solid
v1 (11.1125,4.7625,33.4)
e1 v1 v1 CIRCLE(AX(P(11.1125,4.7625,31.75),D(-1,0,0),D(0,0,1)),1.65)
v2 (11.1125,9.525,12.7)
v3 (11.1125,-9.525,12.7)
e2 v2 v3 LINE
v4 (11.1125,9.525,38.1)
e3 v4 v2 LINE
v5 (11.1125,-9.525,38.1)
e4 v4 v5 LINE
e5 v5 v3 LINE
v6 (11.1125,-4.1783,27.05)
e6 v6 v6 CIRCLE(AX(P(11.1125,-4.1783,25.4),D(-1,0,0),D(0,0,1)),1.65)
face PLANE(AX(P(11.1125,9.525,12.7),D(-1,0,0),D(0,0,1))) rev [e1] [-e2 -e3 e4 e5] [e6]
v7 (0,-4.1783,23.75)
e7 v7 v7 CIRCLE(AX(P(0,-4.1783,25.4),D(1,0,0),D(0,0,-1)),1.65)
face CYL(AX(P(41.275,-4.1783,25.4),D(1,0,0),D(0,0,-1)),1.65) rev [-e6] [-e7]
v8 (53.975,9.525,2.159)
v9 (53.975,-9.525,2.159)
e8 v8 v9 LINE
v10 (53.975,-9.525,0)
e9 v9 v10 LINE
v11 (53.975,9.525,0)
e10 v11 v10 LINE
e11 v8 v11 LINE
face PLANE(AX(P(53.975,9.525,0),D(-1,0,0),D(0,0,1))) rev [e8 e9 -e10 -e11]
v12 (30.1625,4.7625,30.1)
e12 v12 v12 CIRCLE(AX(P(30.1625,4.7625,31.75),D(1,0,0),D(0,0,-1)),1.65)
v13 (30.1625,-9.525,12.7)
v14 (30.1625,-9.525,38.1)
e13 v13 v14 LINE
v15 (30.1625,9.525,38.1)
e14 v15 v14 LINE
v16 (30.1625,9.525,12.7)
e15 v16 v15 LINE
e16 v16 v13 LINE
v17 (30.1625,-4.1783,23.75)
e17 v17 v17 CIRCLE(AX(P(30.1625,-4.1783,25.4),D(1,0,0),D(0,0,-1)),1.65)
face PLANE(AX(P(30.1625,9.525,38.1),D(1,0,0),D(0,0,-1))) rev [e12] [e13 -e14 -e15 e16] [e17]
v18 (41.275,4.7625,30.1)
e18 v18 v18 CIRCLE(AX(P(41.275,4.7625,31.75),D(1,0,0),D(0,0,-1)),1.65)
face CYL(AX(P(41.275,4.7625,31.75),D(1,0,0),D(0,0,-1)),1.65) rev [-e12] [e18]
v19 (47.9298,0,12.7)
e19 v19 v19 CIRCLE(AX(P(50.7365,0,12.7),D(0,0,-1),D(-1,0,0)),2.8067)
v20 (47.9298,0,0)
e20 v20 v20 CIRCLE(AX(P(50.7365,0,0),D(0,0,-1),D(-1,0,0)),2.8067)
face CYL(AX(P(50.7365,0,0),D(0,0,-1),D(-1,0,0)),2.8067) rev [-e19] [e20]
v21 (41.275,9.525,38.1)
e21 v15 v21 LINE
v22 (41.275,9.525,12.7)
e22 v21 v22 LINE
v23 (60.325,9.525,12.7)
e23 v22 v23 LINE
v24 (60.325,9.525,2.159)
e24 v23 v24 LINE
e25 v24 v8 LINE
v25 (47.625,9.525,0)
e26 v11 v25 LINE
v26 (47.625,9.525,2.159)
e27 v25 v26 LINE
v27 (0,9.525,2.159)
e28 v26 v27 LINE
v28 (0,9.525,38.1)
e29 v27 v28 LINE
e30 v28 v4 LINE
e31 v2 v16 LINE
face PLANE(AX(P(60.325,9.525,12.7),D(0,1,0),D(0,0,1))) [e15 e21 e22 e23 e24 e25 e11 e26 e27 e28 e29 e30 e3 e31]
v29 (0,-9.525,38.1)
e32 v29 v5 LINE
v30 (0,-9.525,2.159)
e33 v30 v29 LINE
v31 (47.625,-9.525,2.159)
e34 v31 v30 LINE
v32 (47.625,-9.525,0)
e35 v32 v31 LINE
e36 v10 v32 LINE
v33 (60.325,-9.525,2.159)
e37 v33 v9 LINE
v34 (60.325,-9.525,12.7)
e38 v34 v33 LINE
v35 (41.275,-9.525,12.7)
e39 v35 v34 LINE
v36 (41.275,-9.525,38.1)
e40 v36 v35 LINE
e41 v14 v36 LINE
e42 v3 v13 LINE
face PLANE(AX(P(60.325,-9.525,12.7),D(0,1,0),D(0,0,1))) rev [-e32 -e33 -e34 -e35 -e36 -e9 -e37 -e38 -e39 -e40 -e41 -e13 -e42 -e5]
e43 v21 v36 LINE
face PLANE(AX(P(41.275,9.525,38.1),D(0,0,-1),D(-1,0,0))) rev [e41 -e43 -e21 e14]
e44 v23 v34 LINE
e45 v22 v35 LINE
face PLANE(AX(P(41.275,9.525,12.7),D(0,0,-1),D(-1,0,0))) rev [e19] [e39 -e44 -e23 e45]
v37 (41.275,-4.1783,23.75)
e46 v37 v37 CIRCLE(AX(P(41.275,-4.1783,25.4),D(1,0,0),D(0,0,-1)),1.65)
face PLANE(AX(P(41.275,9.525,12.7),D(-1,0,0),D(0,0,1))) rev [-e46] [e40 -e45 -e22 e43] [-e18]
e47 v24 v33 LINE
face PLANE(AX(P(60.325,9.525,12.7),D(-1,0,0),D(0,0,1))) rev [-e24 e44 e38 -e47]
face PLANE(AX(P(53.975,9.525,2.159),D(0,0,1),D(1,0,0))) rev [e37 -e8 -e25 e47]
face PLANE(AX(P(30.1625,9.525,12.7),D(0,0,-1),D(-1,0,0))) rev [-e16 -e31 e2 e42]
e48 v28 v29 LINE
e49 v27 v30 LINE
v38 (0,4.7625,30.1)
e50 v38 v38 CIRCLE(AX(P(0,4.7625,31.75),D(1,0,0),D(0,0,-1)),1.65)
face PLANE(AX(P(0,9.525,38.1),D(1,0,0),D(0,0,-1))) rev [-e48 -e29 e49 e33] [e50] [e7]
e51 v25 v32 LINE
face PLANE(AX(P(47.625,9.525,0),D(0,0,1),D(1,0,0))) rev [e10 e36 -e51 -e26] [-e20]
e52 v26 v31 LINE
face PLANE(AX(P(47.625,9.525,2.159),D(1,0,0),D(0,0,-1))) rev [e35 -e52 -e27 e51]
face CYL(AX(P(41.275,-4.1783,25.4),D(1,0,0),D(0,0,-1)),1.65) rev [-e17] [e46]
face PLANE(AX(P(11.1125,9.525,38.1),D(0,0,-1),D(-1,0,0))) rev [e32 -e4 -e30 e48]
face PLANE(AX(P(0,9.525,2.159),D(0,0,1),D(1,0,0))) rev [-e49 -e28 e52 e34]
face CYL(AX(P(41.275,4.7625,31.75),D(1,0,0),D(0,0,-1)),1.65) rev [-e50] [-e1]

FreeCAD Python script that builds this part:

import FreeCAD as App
import Part
import Sketcher

V = App.Vector
Q = App.Units.Quantity

doc = App.newDocument("Part")
body = doc.addObject("PartDesign::Body", "Body")

# Sketch on XZ plane
sketch1 = doc.addObject("Sketcher::SketchObject", "Sketch")
body.addObject(sketch1)
sketch1.AttachmentSupport = (doc.XZ_Plane, [""])
sketch1.MapMode = "FlatFace"
sketch1.addGeometry([
    Part.LineSegment(V(54, 0, 0), V(47.6, 0, 0)),  # 0
    Part.LineSegment(V(47.6, 0, 0), V(47.6, 2.2, 0)),  # 1
    Part.LineSegment(V(47.6, 2.2, 0), V(0, 2.2, 0)),  # 2
    Part.LineSegment(V(0, 2.2, 0), V(0, 38.1, 0)),  # 3
    Part.LineSegment(V(0, 38.1, 0), V(11.1, 38.1, 0)),  # 4
    Part.LineSegment(V(11.1, 38.1, 0), V(11.1, 12.7, 0)),  # 5
    Part.LineSegment(V(11.1, 12.7, 0), V(30.2, 12.7, 0)),  # 6
    Part.LineSegment(V(30.2, 12.7, 0), V(30.2, 38.1, 0)),  # 7
    Part.LineSegment(V(30.2, 38.1, 0), V(41.3, 38.1, 0)),  # 8
    Part.LineSegment(V(41.3, 38.1, 0), V(41.3, 12.7, 0)),  # 9
    Part.LineSegment(V(41.3, 12.7, 0), V(60.3, 12.7, 0)),  # 10
    Part.LineSegment(V(60.3, 12.7, 0), V(60.3, 2.2, 0)),  # 11
    Part.LineSegment(V(60.3, 2.2, 0), V(54, 2.2, 0)),  # 12
    Part.LineSegment(V(54, 2.2, 0), V(54, 0, 0)),  # 13
], False)
sketch1.addConstraint([
    Sketcher.Constraint("Coincident", 0, 2, 1, 1),
    Sketcher.Constraint("Coincident", 1, 2, 2, 1),
    Sketcher.Constraint("Coincident", 2, 2, 3, 1),
    Sketcher.Constraint("Coincident", 3, 2, 4, 1),
    Sketcher.Constraint("Coincident", 4, 2, 5, 1),
    Sketcher.Constraint("Coincident", 5, 2, 6, 1),
    Sketcher.Constraint("Coincident", 6, 2, 7, 1),
    Sketcher.Constraint("Coincident", 7, 2, 8, 1),
    Sketcher.Constraint("Coincident", 8, 2, 9, 1),
    Sketcher.Constraint("Coincident", 9, 2, 10, 1),
    Sketcher.Constraint("Coincident", 10, 2, 11, 1),
    Sketcher.Constraint("Coincident", 11, 2, 12, 1),
    Sketcher.Constraint("Coincident", 12, 2, 13, 1),
    Sketcher.Constraint("Coincident", 13, 2, 0, 1),
    Sketcher.Constraint("Horizontal", 0),
    Sketcher.Constraint("Vertical", 1),
    Sketcher.Constraint("Horizontal", 2),
    Sketcher.Constraint("Vertical", 3),
    Sketcher.Constraint("Horizontal", 4),
    Sketcher.Constraint("Vertical", 5),
    Sketcher.Constraint("Horizontal", 6),
    Sketcher.Constraint("Vertical", 7),
    Sketcher.Constraint("Horizontal", 8),
    Sketcher.Constraint("Vertical", 9),
    Sketcher.Constraint("Horizontal", 10),
    Sketcher.Constraint("Vertical", 11),
    Sketcher.Constraint("Horizontal", 12),
    Sketcher.Constraint("Vertical", 13),
    Sketcher.Constraint("PointOnObject", 0, 2, -1),
    Sketcher.Constraint("PointOnObject", 2, 2, -2),
    Sketcher.Constraint("Horizontal", 4, 2, 7, 2),
    Sketcher.Constraint("Horizontal", 6, 2, 9, 2),
    Sketcher.Constraint("Horizontal", 2, 2, 11, 2),
    Sketcher.Constraint("Equal", 4, 8),
    Sketcher.Constraint("Equal", 6, 10),
    Sketcher.Constraint("Equal", 0, 12),
    Sketcher.Constraint("DistanceY", 5, 2, 5, 1, Q("1 in")),
    Sketcher.Constraint("DistanceX", 0, 2, 0, 1, Q("0.25 in")),
    Sketcher.Constraint("DistanceX", 6, 1, 6, 2, Q("0.75 in")),
    Sketcher.Constraint("DistanceY", -1, 1, 3, 2, Q("1.5 in")),
    Sketcher.Constraint("DistanceX", 2, 2, 2, 1, Q("1.875 in")),
    Sketcher.Constraint("DistanceY", 1, 1, 1, 2, Q("0.085 in")),
])
pad1 = doc.addObject("PartDesign::Pad", "Pad")
body.addObject(pad1)
pad1.Profile = sketch1
pad1.Length = Q("0.75 in")
pad1.Midplane = True

# Sketch on YZ plane
sketch2 = doc.addObject("Sketcher::SketchObject", "Sketch001")
body.addObject(sketch2)
sketch2.AttachmentSupport = (doc.YZ_Plane, [""])
sketch2.MapMode = "FlatFace"
sketch2.AttachmentOffset = App.Placement(V(0, 0, 1.625 * 25.4), App.Rotation())
sketch2.addGeometry([
    Part.Circle(V(4.8, 31.8, 0), V(0, 0, 1), 1.6),
    Part.Circle(V(-4.2, 25.4, 0), V(0, 0, 1), 1.6),
], False)
sketch2.addConstraint([
    Sketcher.Constraint("Equal", 0, 1),
    Sketcher.Constraint("DistanceY", -1, 1, 1, 3, Q("1 in")),
    Sketcher.Constraint("Diameter", 0, Q("3.3 mm")),
    Sketcher.Constraint("DistanceY", -1, 1, 0, 3, Q("1.25 in")),
    Sketcher.Constraint("DistanceX", -1, 1, 0, 3, Q("0.1875 in")),
    Sketcher.Constraint("DistanceX", 1, 3, 0, 3, Q("0.352 in")),
])
doc.recompute()
hole = doc.addObject("PartDesign::Hole", "Hole")
body.addObject(hole)
hole.Profile = sketch2
hole.ThreadType = "None"
hole.Diameter = 3.3
hole.DepthType = "ThroughAll"

# Sketch on XY plane
sketch3 = doc.addObject("Sketcher::SketchObject", "Sketch002")
body.addObject(sketch3)
sketch3.AttachmentSupport = (doc.XY_Plane, [""])
sketch3.MapMode = "FlatFace"
sketch3.addGeometry(Part.Circle(V(50.7, 0, 0), V(0, 0, 1), 2.8), False)
sketch3.addConstraint([
    Sketcher.Constraint("PointOnObject", 0, 3, -1),
    Sketcher.Constraint("Diameter", 0, Q("0.221 in")),
    Sketcher.Constraint("DistanceX", -1, 1, 0, 3, Q("1.9975 in")),
])
doc.recompute()
hole2 = doc.addObject("PartDesign::Hole", "Hole001")
body.addObject(hole2)
hole2.Profile = sketch3
hole2.ThreadType = "None"
hole2.Diameter = Q("0.221 in")
hole2.DepthType = "ThroughAll"
hole2.Reversed = True

doc.recompute()
